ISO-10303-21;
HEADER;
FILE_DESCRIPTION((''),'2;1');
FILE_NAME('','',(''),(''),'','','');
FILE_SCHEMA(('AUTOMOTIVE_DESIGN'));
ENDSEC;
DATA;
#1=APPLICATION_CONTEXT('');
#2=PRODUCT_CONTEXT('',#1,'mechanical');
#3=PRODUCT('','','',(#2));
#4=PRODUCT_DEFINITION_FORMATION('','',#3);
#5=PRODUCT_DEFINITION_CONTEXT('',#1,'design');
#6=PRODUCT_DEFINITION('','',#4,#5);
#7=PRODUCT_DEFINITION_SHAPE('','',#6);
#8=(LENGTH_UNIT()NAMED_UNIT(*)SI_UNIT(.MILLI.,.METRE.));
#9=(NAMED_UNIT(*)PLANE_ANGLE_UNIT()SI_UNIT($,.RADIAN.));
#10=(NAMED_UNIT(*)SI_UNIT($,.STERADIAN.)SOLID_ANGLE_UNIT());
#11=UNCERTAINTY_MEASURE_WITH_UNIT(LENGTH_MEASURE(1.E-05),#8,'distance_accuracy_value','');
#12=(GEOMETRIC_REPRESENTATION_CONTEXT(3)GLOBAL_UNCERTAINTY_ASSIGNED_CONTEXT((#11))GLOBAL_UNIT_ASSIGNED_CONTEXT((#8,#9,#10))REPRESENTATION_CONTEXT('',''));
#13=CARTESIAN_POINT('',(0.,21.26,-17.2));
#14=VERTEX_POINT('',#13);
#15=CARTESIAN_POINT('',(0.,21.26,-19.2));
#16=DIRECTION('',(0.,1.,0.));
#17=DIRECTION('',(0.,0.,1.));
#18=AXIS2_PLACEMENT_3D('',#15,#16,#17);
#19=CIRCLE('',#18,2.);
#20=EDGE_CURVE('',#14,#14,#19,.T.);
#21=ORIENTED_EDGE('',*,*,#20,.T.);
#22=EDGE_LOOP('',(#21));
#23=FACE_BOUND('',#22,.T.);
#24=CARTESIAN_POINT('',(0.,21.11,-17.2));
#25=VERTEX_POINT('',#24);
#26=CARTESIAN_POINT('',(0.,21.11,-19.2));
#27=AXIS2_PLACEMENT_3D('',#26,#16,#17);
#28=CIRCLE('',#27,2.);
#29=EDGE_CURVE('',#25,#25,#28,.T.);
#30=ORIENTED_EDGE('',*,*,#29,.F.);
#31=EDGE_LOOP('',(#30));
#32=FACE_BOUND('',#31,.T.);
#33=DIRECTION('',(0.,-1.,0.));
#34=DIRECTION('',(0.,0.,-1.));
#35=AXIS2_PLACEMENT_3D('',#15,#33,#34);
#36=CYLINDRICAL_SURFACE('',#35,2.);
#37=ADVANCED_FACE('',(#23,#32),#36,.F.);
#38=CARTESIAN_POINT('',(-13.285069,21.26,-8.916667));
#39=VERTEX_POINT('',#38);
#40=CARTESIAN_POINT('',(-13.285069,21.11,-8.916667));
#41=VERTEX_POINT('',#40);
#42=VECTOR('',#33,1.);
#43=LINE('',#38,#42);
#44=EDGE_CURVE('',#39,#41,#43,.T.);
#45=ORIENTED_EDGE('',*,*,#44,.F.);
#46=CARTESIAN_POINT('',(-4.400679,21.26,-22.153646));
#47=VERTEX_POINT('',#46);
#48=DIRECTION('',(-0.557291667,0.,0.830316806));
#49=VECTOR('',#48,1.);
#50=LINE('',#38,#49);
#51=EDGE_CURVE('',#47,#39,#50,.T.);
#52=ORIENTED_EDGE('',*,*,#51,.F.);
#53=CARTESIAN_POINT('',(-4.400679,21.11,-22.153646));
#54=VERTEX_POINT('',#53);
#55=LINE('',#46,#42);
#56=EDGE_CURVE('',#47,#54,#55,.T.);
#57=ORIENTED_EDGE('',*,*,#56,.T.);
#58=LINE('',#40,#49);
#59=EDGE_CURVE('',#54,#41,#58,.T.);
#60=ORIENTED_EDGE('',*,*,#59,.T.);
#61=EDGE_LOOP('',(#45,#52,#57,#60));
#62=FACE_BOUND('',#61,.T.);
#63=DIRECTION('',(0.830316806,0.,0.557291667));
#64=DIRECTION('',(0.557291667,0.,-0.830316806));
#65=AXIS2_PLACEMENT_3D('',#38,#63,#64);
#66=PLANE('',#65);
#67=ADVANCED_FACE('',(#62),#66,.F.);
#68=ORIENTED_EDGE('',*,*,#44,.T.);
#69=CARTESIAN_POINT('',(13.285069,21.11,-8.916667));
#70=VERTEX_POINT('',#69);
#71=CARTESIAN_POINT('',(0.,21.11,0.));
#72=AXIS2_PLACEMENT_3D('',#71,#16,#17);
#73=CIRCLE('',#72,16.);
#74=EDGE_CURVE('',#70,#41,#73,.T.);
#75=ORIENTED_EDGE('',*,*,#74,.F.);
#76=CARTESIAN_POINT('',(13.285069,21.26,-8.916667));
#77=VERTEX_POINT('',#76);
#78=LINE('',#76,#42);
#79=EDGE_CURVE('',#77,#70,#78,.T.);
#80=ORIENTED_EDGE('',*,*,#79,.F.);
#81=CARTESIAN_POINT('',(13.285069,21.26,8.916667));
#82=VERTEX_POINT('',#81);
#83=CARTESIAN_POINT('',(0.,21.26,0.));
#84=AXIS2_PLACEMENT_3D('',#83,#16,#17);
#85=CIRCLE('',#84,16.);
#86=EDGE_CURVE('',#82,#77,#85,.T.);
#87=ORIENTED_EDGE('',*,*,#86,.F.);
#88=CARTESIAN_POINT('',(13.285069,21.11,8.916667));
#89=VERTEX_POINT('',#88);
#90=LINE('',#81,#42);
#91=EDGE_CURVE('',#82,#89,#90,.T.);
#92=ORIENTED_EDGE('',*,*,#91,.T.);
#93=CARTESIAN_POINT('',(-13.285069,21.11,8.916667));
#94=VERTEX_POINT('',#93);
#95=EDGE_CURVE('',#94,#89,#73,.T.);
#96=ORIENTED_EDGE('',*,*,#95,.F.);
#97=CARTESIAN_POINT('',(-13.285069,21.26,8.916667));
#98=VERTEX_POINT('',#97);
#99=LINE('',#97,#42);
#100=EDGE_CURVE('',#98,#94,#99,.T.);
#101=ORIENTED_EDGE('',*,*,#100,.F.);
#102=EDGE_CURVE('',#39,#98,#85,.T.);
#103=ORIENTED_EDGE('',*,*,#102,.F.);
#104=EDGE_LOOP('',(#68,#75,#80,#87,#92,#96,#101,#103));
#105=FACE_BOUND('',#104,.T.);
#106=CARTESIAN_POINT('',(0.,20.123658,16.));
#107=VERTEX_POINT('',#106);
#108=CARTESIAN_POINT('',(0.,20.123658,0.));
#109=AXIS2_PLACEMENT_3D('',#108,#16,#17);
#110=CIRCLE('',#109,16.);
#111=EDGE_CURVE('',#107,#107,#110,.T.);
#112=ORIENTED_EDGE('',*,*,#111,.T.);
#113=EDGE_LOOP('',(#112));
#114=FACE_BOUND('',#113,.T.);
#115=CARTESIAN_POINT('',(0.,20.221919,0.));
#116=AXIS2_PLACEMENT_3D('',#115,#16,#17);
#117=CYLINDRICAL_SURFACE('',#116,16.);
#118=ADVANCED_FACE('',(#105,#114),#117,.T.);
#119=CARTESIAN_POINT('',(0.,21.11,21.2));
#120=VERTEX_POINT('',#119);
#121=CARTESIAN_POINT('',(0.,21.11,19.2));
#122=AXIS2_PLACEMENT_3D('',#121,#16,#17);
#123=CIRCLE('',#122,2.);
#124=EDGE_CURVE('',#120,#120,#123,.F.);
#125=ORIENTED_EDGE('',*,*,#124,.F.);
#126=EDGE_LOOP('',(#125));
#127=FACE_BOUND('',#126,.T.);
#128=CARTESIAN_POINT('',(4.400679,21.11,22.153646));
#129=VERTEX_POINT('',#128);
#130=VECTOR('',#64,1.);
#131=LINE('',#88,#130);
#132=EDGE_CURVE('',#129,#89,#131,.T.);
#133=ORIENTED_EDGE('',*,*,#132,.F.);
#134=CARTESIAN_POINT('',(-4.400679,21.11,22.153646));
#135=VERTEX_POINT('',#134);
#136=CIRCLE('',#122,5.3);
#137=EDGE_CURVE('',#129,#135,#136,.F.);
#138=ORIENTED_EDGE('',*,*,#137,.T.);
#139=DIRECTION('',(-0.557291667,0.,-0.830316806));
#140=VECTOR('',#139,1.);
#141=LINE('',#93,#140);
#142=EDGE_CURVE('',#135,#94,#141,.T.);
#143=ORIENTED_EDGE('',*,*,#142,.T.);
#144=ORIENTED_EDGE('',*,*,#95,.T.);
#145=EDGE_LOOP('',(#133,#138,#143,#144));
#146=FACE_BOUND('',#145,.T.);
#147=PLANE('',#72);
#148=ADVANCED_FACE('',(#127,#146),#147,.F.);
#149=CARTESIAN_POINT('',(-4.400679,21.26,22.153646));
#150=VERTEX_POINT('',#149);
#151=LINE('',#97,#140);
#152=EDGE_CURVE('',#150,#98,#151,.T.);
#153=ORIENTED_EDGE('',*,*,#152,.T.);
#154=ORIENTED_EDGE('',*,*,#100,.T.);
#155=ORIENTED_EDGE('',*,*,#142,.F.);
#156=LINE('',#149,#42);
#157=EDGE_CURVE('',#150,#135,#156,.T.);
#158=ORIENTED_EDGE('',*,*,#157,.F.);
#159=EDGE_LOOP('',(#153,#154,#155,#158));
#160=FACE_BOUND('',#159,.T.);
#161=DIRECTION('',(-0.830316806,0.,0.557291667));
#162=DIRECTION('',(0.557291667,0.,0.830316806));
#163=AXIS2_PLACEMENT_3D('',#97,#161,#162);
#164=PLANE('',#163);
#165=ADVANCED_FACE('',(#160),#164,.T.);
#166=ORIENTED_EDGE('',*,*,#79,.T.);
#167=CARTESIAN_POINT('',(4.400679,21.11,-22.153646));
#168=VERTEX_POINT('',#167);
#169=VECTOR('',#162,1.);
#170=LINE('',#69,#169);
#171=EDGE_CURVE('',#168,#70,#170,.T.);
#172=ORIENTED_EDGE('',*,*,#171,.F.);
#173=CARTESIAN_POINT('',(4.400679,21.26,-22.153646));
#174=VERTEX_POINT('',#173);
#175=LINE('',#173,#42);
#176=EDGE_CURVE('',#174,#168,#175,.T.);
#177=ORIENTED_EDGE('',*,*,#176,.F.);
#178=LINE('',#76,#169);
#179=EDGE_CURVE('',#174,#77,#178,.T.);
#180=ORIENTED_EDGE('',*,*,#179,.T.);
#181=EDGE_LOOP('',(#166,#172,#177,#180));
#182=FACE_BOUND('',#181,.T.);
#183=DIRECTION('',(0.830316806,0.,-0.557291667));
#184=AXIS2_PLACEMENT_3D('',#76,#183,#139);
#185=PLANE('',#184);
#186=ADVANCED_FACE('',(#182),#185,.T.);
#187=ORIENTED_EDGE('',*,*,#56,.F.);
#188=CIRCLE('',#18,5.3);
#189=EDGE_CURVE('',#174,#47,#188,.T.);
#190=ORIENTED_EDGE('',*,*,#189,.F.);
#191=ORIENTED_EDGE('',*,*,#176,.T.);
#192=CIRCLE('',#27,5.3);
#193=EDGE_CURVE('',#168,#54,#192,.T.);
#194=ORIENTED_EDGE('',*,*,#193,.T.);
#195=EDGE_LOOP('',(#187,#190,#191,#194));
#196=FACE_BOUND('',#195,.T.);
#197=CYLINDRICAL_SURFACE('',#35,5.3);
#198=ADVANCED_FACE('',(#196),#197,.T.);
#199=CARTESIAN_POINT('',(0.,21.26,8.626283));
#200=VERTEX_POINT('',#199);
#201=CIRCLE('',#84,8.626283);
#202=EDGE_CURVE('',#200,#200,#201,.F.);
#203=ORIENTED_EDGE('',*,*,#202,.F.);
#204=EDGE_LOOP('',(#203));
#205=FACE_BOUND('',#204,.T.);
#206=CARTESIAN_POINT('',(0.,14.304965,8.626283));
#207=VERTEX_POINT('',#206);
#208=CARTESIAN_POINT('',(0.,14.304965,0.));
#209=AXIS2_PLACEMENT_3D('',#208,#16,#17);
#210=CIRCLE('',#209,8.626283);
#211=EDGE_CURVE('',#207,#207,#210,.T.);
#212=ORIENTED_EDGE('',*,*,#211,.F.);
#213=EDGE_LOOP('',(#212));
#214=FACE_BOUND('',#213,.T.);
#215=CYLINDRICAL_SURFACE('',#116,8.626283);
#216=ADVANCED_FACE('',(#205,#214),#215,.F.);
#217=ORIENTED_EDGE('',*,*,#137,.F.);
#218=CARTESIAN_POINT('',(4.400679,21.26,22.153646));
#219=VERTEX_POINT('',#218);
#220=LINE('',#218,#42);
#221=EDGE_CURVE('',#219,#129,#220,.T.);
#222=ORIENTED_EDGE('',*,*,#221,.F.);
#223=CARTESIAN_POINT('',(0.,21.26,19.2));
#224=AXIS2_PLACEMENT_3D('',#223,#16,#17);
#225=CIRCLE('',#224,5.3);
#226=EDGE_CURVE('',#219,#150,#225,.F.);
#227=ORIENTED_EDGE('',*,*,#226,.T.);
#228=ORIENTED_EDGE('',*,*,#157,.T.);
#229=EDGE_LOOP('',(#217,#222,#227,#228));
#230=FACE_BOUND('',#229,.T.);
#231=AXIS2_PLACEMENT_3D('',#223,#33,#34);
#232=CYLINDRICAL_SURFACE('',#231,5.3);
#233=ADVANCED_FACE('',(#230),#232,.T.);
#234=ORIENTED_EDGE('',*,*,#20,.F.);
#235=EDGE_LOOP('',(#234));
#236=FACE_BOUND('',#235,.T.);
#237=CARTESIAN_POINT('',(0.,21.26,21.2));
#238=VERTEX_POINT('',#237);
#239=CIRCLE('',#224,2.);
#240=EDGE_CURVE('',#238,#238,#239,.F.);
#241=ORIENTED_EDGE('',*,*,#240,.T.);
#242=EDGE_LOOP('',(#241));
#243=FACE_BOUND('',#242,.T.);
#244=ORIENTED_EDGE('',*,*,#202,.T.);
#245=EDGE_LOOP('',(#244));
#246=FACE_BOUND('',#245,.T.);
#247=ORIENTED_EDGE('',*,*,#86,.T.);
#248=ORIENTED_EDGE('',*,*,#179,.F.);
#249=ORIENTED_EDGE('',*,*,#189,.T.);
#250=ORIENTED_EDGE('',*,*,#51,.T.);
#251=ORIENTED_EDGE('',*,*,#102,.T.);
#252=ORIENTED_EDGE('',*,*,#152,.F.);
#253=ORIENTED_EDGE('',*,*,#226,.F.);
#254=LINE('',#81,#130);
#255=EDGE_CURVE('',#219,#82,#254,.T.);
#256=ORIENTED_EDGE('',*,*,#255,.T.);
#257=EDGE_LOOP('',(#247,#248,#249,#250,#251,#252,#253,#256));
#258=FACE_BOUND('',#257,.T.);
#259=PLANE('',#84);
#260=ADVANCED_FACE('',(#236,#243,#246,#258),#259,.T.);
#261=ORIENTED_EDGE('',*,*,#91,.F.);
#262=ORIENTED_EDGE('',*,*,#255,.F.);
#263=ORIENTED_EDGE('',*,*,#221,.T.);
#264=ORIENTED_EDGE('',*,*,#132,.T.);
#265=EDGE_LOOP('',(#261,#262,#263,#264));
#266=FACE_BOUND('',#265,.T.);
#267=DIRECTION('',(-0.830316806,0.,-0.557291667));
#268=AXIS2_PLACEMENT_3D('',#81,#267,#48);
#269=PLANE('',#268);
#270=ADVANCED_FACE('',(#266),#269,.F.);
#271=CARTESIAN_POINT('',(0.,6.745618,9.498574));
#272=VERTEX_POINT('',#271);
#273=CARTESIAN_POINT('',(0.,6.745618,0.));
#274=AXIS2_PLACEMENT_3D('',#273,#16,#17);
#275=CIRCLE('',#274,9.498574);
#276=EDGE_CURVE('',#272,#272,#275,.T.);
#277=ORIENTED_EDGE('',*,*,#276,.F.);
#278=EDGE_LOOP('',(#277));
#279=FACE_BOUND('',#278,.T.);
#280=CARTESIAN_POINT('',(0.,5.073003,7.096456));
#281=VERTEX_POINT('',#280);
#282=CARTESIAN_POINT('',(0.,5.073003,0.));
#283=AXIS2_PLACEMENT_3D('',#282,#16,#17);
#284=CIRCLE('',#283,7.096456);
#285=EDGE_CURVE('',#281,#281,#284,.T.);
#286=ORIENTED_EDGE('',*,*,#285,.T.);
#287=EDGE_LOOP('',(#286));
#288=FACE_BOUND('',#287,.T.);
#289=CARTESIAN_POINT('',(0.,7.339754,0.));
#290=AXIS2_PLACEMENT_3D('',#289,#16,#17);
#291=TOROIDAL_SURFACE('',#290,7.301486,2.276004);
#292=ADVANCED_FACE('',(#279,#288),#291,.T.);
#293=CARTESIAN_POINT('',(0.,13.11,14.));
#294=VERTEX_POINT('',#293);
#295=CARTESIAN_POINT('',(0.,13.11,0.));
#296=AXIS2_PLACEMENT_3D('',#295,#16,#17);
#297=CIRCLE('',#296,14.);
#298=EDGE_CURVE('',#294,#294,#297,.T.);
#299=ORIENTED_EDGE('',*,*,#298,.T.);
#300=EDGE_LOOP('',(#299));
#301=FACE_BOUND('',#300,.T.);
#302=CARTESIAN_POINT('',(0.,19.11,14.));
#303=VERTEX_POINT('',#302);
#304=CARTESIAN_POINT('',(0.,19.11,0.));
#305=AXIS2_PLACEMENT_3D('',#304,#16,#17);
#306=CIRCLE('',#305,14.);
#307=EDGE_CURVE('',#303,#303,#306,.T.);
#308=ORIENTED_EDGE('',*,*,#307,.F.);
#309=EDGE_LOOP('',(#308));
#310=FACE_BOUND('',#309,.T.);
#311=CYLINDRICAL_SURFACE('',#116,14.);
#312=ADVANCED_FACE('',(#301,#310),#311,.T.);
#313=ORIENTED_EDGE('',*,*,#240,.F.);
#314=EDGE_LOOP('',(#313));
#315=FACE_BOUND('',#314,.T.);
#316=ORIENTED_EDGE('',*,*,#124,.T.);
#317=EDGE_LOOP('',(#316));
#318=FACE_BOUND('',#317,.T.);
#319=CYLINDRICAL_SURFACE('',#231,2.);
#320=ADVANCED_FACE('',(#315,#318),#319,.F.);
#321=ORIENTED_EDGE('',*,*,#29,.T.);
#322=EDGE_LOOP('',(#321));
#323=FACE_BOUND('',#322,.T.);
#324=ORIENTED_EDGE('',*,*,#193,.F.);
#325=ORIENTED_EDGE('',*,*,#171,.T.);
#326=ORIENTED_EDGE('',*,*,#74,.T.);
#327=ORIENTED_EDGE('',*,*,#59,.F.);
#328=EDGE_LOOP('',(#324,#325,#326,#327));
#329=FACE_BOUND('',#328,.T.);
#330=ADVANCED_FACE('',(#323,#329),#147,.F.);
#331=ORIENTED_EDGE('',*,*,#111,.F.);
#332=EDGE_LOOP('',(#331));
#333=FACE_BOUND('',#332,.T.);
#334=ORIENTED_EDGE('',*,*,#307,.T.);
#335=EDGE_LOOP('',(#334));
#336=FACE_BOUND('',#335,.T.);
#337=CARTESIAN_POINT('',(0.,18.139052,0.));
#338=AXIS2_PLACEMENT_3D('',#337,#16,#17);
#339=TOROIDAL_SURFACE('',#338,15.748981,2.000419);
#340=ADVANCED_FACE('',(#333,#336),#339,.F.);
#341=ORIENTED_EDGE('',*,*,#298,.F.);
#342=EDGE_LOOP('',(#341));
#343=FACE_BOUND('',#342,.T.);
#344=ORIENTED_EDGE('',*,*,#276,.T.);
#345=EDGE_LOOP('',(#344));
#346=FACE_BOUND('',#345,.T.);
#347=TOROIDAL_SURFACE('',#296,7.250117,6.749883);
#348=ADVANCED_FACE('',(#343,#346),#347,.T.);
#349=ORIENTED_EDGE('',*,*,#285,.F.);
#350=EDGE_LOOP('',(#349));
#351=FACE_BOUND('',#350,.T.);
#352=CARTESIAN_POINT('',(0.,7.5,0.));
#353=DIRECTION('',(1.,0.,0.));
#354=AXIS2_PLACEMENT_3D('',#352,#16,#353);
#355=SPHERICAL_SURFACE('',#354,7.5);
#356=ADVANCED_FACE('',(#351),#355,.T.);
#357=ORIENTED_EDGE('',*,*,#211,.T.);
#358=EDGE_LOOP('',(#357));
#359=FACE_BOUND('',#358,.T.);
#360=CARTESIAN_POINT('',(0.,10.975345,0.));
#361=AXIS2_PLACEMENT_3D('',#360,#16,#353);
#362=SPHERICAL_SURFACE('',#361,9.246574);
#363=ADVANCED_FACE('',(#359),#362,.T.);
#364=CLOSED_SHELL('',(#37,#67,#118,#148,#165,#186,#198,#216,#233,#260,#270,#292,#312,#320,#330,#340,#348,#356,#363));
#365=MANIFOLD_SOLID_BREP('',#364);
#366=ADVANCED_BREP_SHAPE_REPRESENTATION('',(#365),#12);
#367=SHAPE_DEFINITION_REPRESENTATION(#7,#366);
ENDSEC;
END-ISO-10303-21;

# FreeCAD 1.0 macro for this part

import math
import FreeCAD as App
import Part
import Sketcher

doc = App.newDocument("Part")
body = doc.addObject("PartDesign::Body", "Body")

# Sketch on XY plane
sketch1 = doc.addObject("Sketcher::SketchObject", "Sketch")
body.addObject(sketch1)
sketch1.AttachmentSupport = (doc.XY_Plane, [""])
sketch1.MapMode = "FlatFace"
sketch1.addGeometry(Part.LineSegment(App.Vector(16, 20.1, 0), App.Vector(16, 21.1, 0)), False)
sketch1.addGeometry(Part.LineSegment(App.Vector(16, 21.1, 0), App.Vector(8.6, 21.1, 0)), False)
sketch1.addGeometry(Part.LineSegment(App.Vector(8.6, 21.1, 0), App.Vector(8.6, 14.3, 0)), False)
sketch1.addGeometry(Part.ArcOfCircle(Part.Circle(App.Vector(0, 11, 0), App.Vector(0, 0, 1), 9.2), math.radians(21), math.radians(90)), False)
sketch1.addGeometry(Part.LineSegment(App.Vector(0, 20.2, 0), App.Vector(0, 0, 0)), False)
sketch1.addGeometry(Part.ArcOfCircle(Part.Circle(App.Vector(0, 7.5, 0), App.Vector(0, 0, 1), 7.5), math.radians(-90), math.radians(-19)), False)
sketch1.addGeometry(Part.ArcOfCircle(Part.Circle(App.Vector(7.3, 7.3, 0), App.Vector(0, 0, 1), 2.3), math.radians(-95), math.radians(-15)), False)
sketch1.addGeometry(Part.ArcOfCircle(Part.Circle(App.Vector(7.3, 13.1, 0), App.Vector(0, 0, 1), 6.7), math.radians(-71), math.radians(0)), False)
sketch1.addGeometry(Part.LineSegment(App.Vector(14, 13.1, 0), App.Vector(14, 19.1, 0)), False)
sketch1.addGeometry(Part.ArcOfCircle(Part.Circle(App.Vector(15.7, 18.1, 0), App.Vector(0, 0, 1), 2), math.radians(83), math.radians(151)), False)
sketch1.addConstraint(Sketcher.Constraint("Coincident", 0, 2, 1, 1))
sketch1.addConstraint(Sketcher.Constraint("Coincident", 1, 2, 2, 1))
sketch1.addConstraint(Sketcher.Constraint("Coincident", 2, 2, 3, 1))
sketch1.addConstraint(Sketcher.Constraint("Coincident", 3, 2, 4, 1))
sketch1.addConstraint(Sketcher.Constraint("Coincident", 4, 2, 5, 1))
sketch1.addConstraint(Sketcher.Constraint("Coincident", 5, 2, 6, 1))
sketch1.addConstraint(Sketcher.Constraint("Coincident", 6, 2, 7, 1))
sketch1.addConstraint(Sketcher.Constraint("Tangent", 7, 2, 8, 1))
sketch1.addConstraint(Sketcher.Constraint("Coincident", 8, 2, 9, 2))
sketch1.addConstraint(Sketcher.Constraint("Coincident", 9, 1, 0, 1))
sketch1.addConstraint(Sketcher.Constraint("Vertical", 0))
sketch1.addConstraint(Sketcher.Constraint("Horizontal", 1))
sketch1.addConstraint(Sketcher.Constraint("Vertical", 2))
sketch1.addConstraint(Sketcher.Constraint("Vertical", 4))
sketch1.addConstraint(Sketcher.Constraint("Vertical", 8))
sketch1.addConstraint(Sketcher.Constraint("Coincident", 4, 2, -1, 1))
sketch1.addConstraint(Sketcher.Constraint("PointOnObject", 3, 3, -2))
sketch1.addConstraint(Sketcher.Constraint("PointOnObject", 5, 3, -2))
sketch1.addConstraint(Sketcher.Constraint("Radius", 5, 7.5))
sketch1.addConstraint(Sketcher.Constraint("DistanceY", 8, 1, 8, 2, 6.0))
sketch1.addConstraint(Sketcher.Constraint("DistanceX", -1, 1, 0, 2, 16.0))
sketch1.addConstraint(Sketcher.Constraint("DistanceX", -1, 1, 7, 2, 14.0))
sketch1.addConstraint(Sketcher.Constraint("DistanceY", 7, 3, 0, 2, 8.0))
sketch1.addConstraint(Sketcher.Constraint("DistanceY", -1, 1, 7, 3, 13.11))
sketch1.addConstraint(Sketcher.Constraint("Radius", 9, 2.000419))
sketch1.addConstraint(Sketcher.Constraint("Radius", 3, 9.246574))
sketch1.addConstraint(Sketcher.Constraint("Radius", 6, 2.276004))
sketch1.addConstraint(Sketcher.Constraint("Radius", 7, 6.749883))
sketch1.addConstraint(Sketcher.Constraint("DistanceY", 0, 1, 0, 2, 0.986342))
sketch1.addConstraint(Sketcher.Constraint("DistanceY", 4, 2, 4, 1, 20.221919))
sketch1.addConstraint(Sketcher.Constraint("DistanceX", 1, 2, 1, 1, 7.373717))
sketch1.addConstraint(Sketcher.Constraint("DistanceY", 6, 3, 3, 3, 3.635591))
sketch1.addConstraint(Sketcher.Constraint("DistanceX", 7, 3, 6, 3, 0.051369))
revolution = doc.addObject("PartDesign::Revolution", "Revolution")
body.addObject(revolution)
revolution.Profile = sketch1
revolution.ReferenceAxis = (sketch1, ["V_Axis"])
revolution.Angle = 360

# Sketch on XZ plane
sketch2 = doc.addObject("Sketcher::SketchObject", "Sketch001")
body.addObject(sketch2)
sketch2.AttachmentSupport = (doc.XZ_Plane, [""])
sketch2.MapMode = "FlatFace"
sketch2.AttachmentOffset = App.Placement(App.Vector(0, 0, -21.11), App.Rotation())
sketch2.addGeometry(Part.LineSegment(App.Vector(-13.3, 8.9, 0), App.Vector(-4.4, 22.2, 0)), False)
sketch2.addGeometry(Part.ArcOfCircle(Part.Circle(App.Vector(0, 19.2, 0), App.Vector(0, 0, 1), 5.3), math.radians(34), math.radians(146)), False)
sketch2.addGeometry(Part.LineSegment(App.Vector(4.4, 22.2, 0), App.Vector(13.3, 8.9, 0)), False)
sketch2.addGeometry(Part.ArcOfCircle(Part.Circle(App.Vector(0, 0, 0), App.Vector(0, 0, 1), 16), math.radians(-34), math.radians(34)), False)
sketch2.addGeometry(Part.LineSegment(App.Vector(13.3, -8.9, 0), App.Vector(4.4, -22.2, 0)), False)
sketch2.addGeometry(Part.ArcOfCircle(Part.Circle(App.Vector(0, -19.2, 0), App.Vector(0, 0, 1), 5.3), math.radians(-146), math.radians(-34)), False)
sketch2.addGeometry(Part.LineSegment(App.Vector(-4.4, -22.2, 0), App.Vector(-13.3, -8.9, 0)), False)
sketch2.addGeometry(Part.ArcOfCircle(Part.Circle(App.Vector(0, 0, 0), App.Vector(0, 0, 1), 16), math.radians(146), math.radians(214)), False)
sketch2.addGeometry(Part.Circle(App.Vector(0, 19.2, 0), App.Vector(0, 0, 1), 2), False)
sketch2.addGeometry(Part.Circle(App.Vector(0, 0, 0), App.Vector(0, 0, 1), 8.6), False)
sketch2.addGeometry(Part.Circle(App.Vector(0, -19.2, 0), App.Vector(0, 0, 1), 2), False)
sketch2.addConstraint(Sketcher.Constraint("Tangent", 0, 2, 1, 2))
sketch2.addConstraint(Sketcher.Constraint("Tangent", 1, 1, 2, 1))
sketch2.addConstraint(Sketcher.Constraint("Tangent", 2, 2, 3, 2))
sketch2.addConstraint(Sketcher.Constraint("Tangent", 3, 1, 4, 1))
sketch2.addConstraint(Sketcher.Constraint("Tangent", 4, 2, 5, 2))
sketch2.addConstraint(Sketcher.Constraint("Tangent", 5, 1, 6, 1))
sketch2.addConstraint(Sketcher.Constraint("Tangent", 6, 2, 7, 2))
sketch2.addConstraint(Sketcher.Constraint("Tangent", 7, 1, 0, 1))
sketch2.addConstraint(Sketcher.Constraint("Coincident", 3, 3, -1, 1))
sketch2.addConstraint(Sketcher.Constraint("Coincident", 7, 3, -1, 1))
sketch2.addConstraint(Sketcher.Constraint("Coincident", 9, 3, -1, 1))
sketch2.addConstraint(Sketcher.Constraint("Coincident", 8, 3, 1, 3))
sketch2.addConstraint(Sketcher.Constraint("Coincident", 10, 3, 5, 3))
sketch2.addConstraint(Sketcher.Constraint("Equal", 1, 5))
sketch2.addConstraint(Sketcher.Constraint("Equal", 3, 7))
sketch2.addConstraint(Sketcher.Constraint("Equal", 8, 10))
sketch2.addConstraint(Sketcher.Constraint("Symmetric", 1, 3, 5, 3, -1, 1))
sketch2.addConstraint(Sketcher.Constraint("PointOnObject", 1, 3, -2))
sketch2.addConstraint(Sketcher.Constraint("Diameter", 8, 4.0))
sketch2.addConstraint(Sketcher.Constraint("Radius", 3, 16.0))
sketch2.addConstraint(Sketcher.Constraint("Radius", 1, 5.3))
sketch2.addConstraint(Sketcher.Constraint("DistanceY", -1, 1, 1, 3, 19.2))
sketch2.addConstraint(Sketcher.Constraint("Diameter", 9, 17.252567))
pad1 = doc.addObject("PartDesign::Pad", "Pad")
body.addObject(pad1)
pad1.Profile = sketch2
pad1.Length = 0.15
pad1.Reversed = True

doc.recompute()
